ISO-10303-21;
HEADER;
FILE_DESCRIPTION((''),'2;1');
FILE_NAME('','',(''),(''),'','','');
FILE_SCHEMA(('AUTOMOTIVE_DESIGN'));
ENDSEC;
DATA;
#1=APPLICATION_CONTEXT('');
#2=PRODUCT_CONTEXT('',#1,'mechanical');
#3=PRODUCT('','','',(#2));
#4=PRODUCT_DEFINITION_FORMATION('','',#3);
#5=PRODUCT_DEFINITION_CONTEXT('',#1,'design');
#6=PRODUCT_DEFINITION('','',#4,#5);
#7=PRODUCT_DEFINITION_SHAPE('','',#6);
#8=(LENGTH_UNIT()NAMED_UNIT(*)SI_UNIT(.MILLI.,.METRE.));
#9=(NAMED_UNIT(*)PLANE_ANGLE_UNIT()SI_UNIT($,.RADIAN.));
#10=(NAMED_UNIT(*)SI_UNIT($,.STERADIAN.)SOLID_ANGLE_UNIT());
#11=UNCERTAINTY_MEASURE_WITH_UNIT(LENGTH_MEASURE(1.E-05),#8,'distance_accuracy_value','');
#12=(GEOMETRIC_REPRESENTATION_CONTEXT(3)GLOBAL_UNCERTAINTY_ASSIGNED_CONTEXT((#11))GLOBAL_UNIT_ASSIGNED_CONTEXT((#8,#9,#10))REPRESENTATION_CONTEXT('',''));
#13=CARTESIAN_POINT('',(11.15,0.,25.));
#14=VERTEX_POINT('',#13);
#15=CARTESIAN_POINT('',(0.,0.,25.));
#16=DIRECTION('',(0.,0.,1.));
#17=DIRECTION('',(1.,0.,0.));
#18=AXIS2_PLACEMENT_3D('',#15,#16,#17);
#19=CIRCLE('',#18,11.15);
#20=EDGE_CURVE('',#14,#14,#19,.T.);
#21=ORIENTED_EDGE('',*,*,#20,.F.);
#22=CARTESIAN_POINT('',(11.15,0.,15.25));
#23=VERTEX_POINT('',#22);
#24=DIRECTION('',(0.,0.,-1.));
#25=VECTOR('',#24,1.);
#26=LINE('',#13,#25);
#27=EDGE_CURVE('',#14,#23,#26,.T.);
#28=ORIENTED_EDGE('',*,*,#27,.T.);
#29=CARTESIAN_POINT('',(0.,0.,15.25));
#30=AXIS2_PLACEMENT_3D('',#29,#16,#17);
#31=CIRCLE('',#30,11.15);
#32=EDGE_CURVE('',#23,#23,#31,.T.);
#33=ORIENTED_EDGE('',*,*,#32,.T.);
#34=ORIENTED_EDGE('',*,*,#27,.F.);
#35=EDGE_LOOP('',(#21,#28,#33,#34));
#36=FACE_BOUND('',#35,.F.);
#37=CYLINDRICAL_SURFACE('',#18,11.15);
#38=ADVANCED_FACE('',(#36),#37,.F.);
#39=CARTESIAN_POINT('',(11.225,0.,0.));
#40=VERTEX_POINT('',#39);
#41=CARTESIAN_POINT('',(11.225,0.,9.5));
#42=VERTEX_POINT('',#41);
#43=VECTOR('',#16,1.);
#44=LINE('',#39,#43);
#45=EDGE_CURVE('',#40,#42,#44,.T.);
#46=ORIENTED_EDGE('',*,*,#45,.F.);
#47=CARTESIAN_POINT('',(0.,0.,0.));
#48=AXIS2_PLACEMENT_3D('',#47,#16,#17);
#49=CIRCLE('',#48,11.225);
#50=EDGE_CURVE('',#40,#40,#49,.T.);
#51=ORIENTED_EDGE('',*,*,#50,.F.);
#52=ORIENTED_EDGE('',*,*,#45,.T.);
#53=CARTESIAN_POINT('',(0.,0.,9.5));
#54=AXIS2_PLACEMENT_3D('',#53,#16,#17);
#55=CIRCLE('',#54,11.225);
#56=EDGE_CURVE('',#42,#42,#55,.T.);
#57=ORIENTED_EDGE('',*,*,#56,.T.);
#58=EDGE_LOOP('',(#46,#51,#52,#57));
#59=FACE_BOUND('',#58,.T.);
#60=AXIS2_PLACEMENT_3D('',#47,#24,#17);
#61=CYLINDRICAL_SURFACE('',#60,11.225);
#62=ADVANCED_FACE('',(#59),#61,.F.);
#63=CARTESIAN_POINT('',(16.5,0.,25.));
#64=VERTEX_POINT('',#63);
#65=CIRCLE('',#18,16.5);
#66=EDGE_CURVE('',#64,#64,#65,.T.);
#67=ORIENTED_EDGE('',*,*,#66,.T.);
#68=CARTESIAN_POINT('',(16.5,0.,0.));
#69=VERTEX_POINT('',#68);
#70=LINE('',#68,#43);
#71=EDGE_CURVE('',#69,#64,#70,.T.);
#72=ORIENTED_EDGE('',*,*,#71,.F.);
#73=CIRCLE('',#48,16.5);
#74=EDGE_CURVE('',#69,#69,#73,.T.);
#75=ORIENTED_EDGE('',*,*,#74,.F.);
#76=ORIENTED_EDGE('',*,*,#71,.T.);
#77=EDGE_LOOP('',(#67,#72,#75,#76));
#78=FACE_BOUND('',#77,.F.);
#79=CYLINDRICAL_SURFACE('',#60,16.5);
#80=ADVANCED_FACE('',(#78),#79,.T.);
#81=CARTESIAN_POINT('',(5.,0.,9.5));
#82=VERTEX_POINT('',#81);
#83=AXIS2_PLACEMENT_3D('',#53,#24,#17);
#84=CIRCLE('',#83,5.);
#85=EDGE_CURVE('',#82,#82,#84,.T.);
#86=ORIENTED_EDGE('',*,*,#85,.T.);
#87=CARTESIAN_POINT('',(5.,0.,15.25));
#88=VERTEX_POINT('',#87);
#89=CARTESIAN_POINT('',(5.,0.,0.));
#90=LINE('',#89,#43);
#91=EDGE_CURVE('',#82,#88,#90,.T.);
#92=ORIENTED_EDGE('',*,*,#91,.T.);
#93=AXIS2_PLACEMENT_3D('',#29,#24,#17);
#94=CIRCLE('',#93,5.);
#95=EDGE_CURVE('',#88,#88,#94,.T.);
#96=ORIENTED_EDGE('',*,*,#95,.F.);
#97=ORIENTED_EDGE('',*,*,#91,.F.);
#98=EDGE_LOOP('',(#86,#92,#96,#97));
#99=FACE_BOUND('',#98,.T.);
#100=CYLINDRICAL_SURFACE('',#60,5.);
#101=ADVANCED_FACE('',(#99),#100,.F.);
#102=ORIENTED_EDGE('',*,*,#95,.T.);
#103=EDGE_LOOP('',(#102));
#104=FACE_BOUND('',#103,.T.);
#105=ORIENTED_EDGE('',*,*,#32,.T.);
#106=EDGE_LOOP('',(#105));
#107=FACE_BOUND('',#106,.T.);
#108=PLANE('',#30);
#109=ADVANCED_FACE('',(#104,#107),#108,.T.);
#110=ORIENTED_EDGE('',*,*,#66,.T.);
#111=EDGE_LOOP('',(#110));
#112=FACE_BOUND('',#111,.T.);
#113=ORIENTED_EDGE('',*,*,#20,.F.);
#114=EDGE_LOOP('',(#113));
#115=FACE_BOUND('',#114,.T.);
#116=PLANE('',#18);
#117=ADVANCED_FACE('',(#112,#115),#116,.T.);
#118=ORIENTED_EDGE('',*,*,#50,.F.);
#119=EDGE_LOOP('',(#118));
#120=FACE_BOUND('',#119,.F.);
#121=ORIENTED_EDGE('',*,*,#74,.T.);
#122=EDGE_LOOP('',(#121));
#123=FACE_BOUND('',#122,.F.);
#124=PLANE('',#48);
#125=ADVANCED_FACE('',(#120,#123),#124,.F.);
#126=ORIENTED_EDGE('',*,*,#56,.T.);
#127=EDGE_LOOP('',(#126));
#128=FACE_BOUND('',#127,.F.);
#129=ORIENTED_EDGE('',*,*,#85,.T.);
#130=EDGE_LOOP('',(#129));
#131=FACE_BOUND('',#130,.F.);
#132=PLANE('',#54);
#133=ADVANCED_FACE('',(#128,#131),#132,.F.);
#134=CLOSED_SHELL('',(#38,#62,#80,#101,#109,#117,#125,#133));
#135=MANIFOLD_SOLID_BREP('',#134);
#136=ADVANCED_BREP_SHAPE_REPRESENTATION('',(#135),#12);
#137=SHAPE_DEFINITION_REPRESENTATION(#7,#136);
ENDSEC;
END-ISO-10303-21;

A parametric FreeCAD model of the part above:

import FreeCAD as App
import Part
import Sketcher

doc = App.newDocument("Part")
body = doc.addObject("PartDesign::Body", "Body")

# Sketch on XY plane
sketch1 = body.newObject("Sketcher::SketchObject", "Sketch")
sketch1.AttachmentSupport = (doc.getObject("XY_Plane"), [""])
sketch1.MapMode = "FlatFace"
sketch1.addGeometry(Part.Circle(App.Vector(0, 0, 0), App.Vector(0, 0, 1), 16), False)
sketch1.addGeometry(Part.Circle(App.Vector(0, 0, 0), App.Vector(0, 0, 1), 5), False)
sketch1.addConstraint(Sketcher.Constraint("Coincident", 0, 3, -1, 1))
sketch1.addConstraint(Sketcher.Constraint("Coincident", 1, 3, -1, 1))
sketch1.addConstraint(Sketcher.Constraint("Diameter", 0, 33.0))
sketch1.addConstraint(Sketcher.Constraint("Diameter", 1, 10.0))
pad1 = body.newObject("PartDesign::Pad", "Pad")
pad1.Profile = sketch1
pad1.Length = 25

# Sketch on XY plane
sketch2 = body.newObject("Sketcher::SketchObject", "Sketch001")
sketch2.AttachmentSupport = (doc.getObject("XY_Plane"), [""])
sketch2.MapMode = "FlatFace"
sketch2.AttachmentOffset = App.Placement(App.Vector(0, 0, 25), App.Rotation())
sketch2.addGeometry(Part.Circle(App.Vector(0, 0, 0), App.Vector(0, 0, 1), 11), False)
sketch2.addConstraint(Sketcher.Constraint("Coincident", 0, 3, -1, 1))
sketch2.addConstraint(Sketcher.Constraint("Diameter", 0, 22.3))
pocket1 = body.newObject("PartDesign::Pocket", "Pocket")
pocket1.Profile = sketch2
pocket1.Length = 9.75

# Sketch on XY plane
sketch3 = body.newObject("Sketcher::SketchObject", "Sketch002")
sketch3.AttachmentSupport = (doc.getObject("XY_Plane"), [""])
sketch3.MapMode = "FlatFace"
sketch3.addGeometry(Part.Circle(App.Vector(0, 0, 0), App.Vector(0, 0, 1), 11), False)
sketch3.addConstraint(Sketcher.Constraint("Coincident", 0, 3, -1, 1))
sketch3.addConstraint(Sketcher.Constraint("Diameter", 0, 22.45))
pocket2 = body.newObject("PartDesign::Pocket", "Pocket001")
pocket2.Profile = sketch3
pocket2.Length = 9.5
pocket2.Reversed = True

doc.recompute()
